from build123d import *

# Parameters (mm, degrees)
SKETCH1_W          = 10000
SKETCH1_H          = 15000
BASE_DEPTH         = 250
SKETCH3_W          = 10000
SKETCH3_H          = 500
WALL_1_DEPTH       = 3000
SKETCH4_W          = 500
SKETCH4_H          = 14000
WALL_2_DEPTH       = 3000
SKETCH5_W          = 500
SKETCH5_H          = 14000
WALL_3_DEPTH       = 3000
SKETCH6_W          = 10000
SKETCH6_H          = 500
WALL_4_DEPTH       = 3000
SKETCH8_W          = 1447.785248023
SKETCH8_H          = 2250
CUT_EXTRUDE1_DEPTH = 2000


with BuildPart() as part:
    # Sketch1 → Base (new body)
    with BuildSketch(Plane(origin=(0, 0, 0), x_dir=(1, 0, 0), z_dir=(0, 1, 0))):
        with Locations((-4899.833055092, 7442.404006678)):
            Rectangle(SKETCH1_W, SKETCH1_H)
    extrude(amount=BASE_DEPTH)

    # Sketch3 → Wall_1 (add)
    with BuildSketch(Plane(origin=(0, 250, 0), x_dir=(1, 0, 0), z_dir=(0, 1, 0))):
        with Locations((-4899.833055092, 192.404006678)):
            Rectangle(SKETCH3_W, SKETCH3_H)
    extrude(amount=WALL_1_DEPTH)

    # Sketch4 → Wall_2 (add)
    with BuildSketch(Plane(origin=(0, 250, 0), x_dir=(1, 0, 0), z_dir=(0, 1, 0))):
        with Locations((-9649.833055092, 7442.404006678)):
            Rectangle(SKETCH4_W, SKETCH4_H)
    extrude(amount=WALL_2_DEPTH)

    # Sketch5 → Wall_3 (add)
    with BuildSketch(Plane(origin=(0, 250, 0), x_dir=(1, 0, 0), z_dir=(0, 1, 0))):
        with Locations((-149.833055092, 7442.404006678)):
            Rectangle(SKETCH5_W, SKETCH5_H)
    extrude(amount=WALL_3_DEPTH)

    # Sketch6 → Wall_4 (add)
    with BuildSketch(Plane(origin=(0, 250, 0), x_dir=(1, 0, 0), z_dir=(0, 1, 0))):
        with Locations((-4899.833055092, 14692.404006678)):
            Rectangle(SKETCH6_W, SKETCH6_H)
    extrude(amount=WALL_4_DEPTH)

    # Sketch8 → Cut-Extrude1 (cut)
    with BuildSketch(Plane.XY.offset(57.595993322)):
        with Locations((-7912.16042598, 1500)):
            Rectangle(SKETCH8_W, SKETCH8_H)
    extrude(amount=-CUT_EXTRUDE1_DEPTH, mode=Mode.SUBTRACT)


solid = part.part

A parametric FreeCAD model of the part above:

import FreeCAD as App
import Part
import Sketcher

V = App.Vector


def add_polygon(sketch, points):
    """Adds a closed chain of lines whose ends are joined by coincident constraints."""
    first, n = sketch.GeometryCount, len(points)
    for a, b in zip(points, points[1:] + points[:1]):
        sketch.addGeometry(Part.LineSegment(App.Vector(*a, 0), App.Vector(*b, 0)), False)
    for i in range(n):
        sketch.addConstraint(Sketcher.Constraint("Coincident", first + i, 2, first + (i + 1) % n, 1))

doc = App.newDocument("Part")
body = doc.addObject("PartDesign::Body", "Body")

# Sketch on XZ plane
sketch1 = body.newObject("Sketcher::SketchObject", "Sketch")
sketch1.AttachmentSupport = (doc.getObject("XZ_Plane"), [""])
sketch1.MapMode = "FlatFace"
add_polygon(sketch1, [(-9900, -14942), (-9900, 58), (100, 58), (100, -14942)])  # lines 0-3
sketch1.addConstraint([
    Sketcher.Constraint("Vertical", 0),
    Sketcher.Constraint("Horizontal", 1),
    Sketcher.Constraint("Vertical", 2),
    Sketcher.Constraint("Horizontal", 3),
    Sketcher.Constraint("DistanceX", 1, 1, 1, 2, 10000.0),
    Sketcher.Constraint("DistanceY", 0, 1, 0, 2, 15000.0),
    Sketcher.Constraint("DistanceX", 0, 2, -1, 1, 9899.833055),
    Sketcher.Constraint("DistanceY", -1, 1, 0, 2, 57.595993),
])
pad1 = body.newObject("PartDesign::Pad", "Pad")
pad1.Profile = sketch1
pad1.Length = 250
pad1.Reversed = True

# Sketch on XZ plane
sketch2 = body.newObject("Sketcher::SketchObject", "Sketch001")
sketch2.AttachmentSupport = (doc.getObject("XZ_Plane"), [""])
sketch2.MapMode = "FlatFace"
sketch2.AttachmentOffset = App.Placement(V(0, 0, -250), App.Rotation())
add_polygon(sketch2, [(-9900, -442), (-9900, 58), (100, 58), (100, -442)])  # lines 0-3
sketch2.addConstraint([
    Sketcher.Constraint("Vertical", 0),
    Sketcher.Constraint("Horizontal", 1),
    Sketcher.Constraint("Vertical", 2),
    Sketcher.Constraint("Horizontal", 3),
    Sketcher.Constraint("DistanceX", 1, 1, 1, 2, 10000.0),
    Sketcher.Constraint("DistanceY", 0, 1, 0, 2, 500.0),
    Sketcher.Constraint("DistanceX", 0, 2, -1, 1, 9899.833055),
    Sketcher.Constraint("DistanceY", -1, 1, 0, 2, 57.595993),
])
pad2 = body.newObject("PartDesign::Pad", "Pad001")
pad2.Profile = sketch2
pad2.Length = 3000
pad2.Reversed = True

# Sketch on XZ plane
sketch3 = body.newObject("Sketcher::SketchObject", "Sketch002")
sketch3.AttachmentSupport = (doc.getObject("XZ_Plane"), [""])
sketch3.MapMode = "FlatFace"
sketch3.AttachmentOffset = App.Placement(V(0, 0, -250), App.Rotation())
add_polygon(sketch3, [(-9900, -14442), (-9900, -442), (-9400, -442), (-9400, -14442)])  # lines 0-3
sketch3.addConstraint([
    Sketcher.Constraint("Vertical", 0),
    Sketcher.Constraint("Horizontal", 1),
    Sketcher.Constraint("Vertical", 2),
    Sketcher.Constraint("Horizontal", 3),
    Sketcher.Constraint("DistanceX", 1, 1, 1, 2, 500.0),
    Sketcher.Constraint("DistanceY", 0, 1, 0, 2, 14000.0),
    Sketcher.Constraint("DistanceX", 0, 2, -1, 1, 9899.833055),
    Sketcher.Constraint("DistanceY", 0, 2, -1, 1, 442.404007),
])
pad3 = body.newObject("PartDesign::Pad", "Pad002")
pad3.Profile = sketch3
pad3.Length = 3000
pad3.Reversed = True

# Sketch on XZ plane
sketch4 = body.newObject("Sketcher::SketchObject", "Sketch003")
sketch4.AttachmentSupport = (doc.getObject("XZ_Plane"), [""])
sketch4.MapMode = "FlatFace"
sketch4.AttachmentOffset = App.Placement(V(0, 0, -250), App.Rotation())
add_polygon(sketch4, [(-400, -14442), (-400, -442), (100, -442), (100, -14442)])  # lines 0-3
sketch4.addConstraint([
    Sketcher.Constraint("Vertical", 0),
    Sketcher.Constraint("Horizontal", 1),
    Sketcher.Constraint("Vertical", 2),
    Sketcher.Constraint("Horizontal", 3),
    Sketcher.Constraint("DistanceX", 1, 1, 1, 2, 500.0),
    Sketcher.Constraint("DistanceY", 0, 1, 0, 2, 14000.0),
    Sketcher.Constraint("DistanceX", 0, 2, -1, 1, 399.833055),
    Sketcher.Constraint("DistanceY", 0, 2, -1, 1, 442.404007),
])
pad4 = body.newObject("PartDesign::Pad", "Pad003")
pad4.Profile = sketch4
pad4.Length = 3000
pad4.Reversed = True

# Sketch on XZ plane
sketch5 = body.newObject("Sketcher::SketchObject", "Sketch004")
sketch5.AttachmentSupport = (doc.getObject("XZ_Plane"), [""])
sketch5.MapMode = "FlatFace"
sketch5.AttachmentOffset = App.Placement(V(0, 0, -250), App.Rotation())
add_polygon(sketch5, [(-9900, -14942), (-9900, -14442), (100, -14442), (100, -14942)])  # lines 0-3
sketch5.addConstraint([
    Sketcher.Constraint("Vertical", 0),
    Sketcher.Constraint("Horizontal", 1),
    Sketcher.Constraint("Vertical", 2),
    Sketcher.Constraint("Horizontal", 3),
    Sketcher.Constraint("DistanceX", 1, 1, 1, 2, 10000.0),
    Sketcher.Constraint("DistanceY", 0, 1, 0, 2, 500.0),
    Sketcher.Constraint("DistanceX", 0, 2, -1, 1, 9899.833055),
    Sketcher.Constraint("DistanceY", 0, 2, -1, 1, 14442.404007),
])
pad5 = body.newObject("PartDesign::Pad", "Pad004")
pad5.Profile = sketch5
pad5.Length = 3000
pad5.Reversed = True

# Sketch on XY plane
sketch6 = body.newObject("Sketcher::SketchObject", "Sketch005")
sketch6.AttachmentSupport = (doc.getObject("XY_Plane"), [""])
sketch6.MapMode = "FlatFace"
sketch6.AttachmentOffset = App.Placement(V(0, 0, 57.595993), App.Rotation())
add_polygon(sketch6, [(-8636, 2625), (-8636, 375), (-7188, 375), (-7188, 2625)])  # lines 0-3
sketch6.addConstraint([
    Sketcher.Constraint("Vertical", 0),
    Sketcher.Constraint("Horizontal", 1),
    Sketcher.Constraint("Vertical", 2),
    Sketcher.Constraint("Horizontal", 3),
    Sketcher.Constraint("DistanceY", 0, 2, 0, 1, 2250.0),
    Sketcher.Constraint("DistanceY", -1, 1, 0, 2, 375.0),
    Sketcher.Constraint("DistanceX", 1, 1, 1, 2, 1447.785248),
    Sketcher.Constraint("DistanceX", 1, 2, -1, 1, 7188.267802),
])
pocket1 = body.newObject("PartDesign::Pocket", "Pocket")
pocket1.Profile = sketch6
pocket1.Length = 2000

doc.recompute()
